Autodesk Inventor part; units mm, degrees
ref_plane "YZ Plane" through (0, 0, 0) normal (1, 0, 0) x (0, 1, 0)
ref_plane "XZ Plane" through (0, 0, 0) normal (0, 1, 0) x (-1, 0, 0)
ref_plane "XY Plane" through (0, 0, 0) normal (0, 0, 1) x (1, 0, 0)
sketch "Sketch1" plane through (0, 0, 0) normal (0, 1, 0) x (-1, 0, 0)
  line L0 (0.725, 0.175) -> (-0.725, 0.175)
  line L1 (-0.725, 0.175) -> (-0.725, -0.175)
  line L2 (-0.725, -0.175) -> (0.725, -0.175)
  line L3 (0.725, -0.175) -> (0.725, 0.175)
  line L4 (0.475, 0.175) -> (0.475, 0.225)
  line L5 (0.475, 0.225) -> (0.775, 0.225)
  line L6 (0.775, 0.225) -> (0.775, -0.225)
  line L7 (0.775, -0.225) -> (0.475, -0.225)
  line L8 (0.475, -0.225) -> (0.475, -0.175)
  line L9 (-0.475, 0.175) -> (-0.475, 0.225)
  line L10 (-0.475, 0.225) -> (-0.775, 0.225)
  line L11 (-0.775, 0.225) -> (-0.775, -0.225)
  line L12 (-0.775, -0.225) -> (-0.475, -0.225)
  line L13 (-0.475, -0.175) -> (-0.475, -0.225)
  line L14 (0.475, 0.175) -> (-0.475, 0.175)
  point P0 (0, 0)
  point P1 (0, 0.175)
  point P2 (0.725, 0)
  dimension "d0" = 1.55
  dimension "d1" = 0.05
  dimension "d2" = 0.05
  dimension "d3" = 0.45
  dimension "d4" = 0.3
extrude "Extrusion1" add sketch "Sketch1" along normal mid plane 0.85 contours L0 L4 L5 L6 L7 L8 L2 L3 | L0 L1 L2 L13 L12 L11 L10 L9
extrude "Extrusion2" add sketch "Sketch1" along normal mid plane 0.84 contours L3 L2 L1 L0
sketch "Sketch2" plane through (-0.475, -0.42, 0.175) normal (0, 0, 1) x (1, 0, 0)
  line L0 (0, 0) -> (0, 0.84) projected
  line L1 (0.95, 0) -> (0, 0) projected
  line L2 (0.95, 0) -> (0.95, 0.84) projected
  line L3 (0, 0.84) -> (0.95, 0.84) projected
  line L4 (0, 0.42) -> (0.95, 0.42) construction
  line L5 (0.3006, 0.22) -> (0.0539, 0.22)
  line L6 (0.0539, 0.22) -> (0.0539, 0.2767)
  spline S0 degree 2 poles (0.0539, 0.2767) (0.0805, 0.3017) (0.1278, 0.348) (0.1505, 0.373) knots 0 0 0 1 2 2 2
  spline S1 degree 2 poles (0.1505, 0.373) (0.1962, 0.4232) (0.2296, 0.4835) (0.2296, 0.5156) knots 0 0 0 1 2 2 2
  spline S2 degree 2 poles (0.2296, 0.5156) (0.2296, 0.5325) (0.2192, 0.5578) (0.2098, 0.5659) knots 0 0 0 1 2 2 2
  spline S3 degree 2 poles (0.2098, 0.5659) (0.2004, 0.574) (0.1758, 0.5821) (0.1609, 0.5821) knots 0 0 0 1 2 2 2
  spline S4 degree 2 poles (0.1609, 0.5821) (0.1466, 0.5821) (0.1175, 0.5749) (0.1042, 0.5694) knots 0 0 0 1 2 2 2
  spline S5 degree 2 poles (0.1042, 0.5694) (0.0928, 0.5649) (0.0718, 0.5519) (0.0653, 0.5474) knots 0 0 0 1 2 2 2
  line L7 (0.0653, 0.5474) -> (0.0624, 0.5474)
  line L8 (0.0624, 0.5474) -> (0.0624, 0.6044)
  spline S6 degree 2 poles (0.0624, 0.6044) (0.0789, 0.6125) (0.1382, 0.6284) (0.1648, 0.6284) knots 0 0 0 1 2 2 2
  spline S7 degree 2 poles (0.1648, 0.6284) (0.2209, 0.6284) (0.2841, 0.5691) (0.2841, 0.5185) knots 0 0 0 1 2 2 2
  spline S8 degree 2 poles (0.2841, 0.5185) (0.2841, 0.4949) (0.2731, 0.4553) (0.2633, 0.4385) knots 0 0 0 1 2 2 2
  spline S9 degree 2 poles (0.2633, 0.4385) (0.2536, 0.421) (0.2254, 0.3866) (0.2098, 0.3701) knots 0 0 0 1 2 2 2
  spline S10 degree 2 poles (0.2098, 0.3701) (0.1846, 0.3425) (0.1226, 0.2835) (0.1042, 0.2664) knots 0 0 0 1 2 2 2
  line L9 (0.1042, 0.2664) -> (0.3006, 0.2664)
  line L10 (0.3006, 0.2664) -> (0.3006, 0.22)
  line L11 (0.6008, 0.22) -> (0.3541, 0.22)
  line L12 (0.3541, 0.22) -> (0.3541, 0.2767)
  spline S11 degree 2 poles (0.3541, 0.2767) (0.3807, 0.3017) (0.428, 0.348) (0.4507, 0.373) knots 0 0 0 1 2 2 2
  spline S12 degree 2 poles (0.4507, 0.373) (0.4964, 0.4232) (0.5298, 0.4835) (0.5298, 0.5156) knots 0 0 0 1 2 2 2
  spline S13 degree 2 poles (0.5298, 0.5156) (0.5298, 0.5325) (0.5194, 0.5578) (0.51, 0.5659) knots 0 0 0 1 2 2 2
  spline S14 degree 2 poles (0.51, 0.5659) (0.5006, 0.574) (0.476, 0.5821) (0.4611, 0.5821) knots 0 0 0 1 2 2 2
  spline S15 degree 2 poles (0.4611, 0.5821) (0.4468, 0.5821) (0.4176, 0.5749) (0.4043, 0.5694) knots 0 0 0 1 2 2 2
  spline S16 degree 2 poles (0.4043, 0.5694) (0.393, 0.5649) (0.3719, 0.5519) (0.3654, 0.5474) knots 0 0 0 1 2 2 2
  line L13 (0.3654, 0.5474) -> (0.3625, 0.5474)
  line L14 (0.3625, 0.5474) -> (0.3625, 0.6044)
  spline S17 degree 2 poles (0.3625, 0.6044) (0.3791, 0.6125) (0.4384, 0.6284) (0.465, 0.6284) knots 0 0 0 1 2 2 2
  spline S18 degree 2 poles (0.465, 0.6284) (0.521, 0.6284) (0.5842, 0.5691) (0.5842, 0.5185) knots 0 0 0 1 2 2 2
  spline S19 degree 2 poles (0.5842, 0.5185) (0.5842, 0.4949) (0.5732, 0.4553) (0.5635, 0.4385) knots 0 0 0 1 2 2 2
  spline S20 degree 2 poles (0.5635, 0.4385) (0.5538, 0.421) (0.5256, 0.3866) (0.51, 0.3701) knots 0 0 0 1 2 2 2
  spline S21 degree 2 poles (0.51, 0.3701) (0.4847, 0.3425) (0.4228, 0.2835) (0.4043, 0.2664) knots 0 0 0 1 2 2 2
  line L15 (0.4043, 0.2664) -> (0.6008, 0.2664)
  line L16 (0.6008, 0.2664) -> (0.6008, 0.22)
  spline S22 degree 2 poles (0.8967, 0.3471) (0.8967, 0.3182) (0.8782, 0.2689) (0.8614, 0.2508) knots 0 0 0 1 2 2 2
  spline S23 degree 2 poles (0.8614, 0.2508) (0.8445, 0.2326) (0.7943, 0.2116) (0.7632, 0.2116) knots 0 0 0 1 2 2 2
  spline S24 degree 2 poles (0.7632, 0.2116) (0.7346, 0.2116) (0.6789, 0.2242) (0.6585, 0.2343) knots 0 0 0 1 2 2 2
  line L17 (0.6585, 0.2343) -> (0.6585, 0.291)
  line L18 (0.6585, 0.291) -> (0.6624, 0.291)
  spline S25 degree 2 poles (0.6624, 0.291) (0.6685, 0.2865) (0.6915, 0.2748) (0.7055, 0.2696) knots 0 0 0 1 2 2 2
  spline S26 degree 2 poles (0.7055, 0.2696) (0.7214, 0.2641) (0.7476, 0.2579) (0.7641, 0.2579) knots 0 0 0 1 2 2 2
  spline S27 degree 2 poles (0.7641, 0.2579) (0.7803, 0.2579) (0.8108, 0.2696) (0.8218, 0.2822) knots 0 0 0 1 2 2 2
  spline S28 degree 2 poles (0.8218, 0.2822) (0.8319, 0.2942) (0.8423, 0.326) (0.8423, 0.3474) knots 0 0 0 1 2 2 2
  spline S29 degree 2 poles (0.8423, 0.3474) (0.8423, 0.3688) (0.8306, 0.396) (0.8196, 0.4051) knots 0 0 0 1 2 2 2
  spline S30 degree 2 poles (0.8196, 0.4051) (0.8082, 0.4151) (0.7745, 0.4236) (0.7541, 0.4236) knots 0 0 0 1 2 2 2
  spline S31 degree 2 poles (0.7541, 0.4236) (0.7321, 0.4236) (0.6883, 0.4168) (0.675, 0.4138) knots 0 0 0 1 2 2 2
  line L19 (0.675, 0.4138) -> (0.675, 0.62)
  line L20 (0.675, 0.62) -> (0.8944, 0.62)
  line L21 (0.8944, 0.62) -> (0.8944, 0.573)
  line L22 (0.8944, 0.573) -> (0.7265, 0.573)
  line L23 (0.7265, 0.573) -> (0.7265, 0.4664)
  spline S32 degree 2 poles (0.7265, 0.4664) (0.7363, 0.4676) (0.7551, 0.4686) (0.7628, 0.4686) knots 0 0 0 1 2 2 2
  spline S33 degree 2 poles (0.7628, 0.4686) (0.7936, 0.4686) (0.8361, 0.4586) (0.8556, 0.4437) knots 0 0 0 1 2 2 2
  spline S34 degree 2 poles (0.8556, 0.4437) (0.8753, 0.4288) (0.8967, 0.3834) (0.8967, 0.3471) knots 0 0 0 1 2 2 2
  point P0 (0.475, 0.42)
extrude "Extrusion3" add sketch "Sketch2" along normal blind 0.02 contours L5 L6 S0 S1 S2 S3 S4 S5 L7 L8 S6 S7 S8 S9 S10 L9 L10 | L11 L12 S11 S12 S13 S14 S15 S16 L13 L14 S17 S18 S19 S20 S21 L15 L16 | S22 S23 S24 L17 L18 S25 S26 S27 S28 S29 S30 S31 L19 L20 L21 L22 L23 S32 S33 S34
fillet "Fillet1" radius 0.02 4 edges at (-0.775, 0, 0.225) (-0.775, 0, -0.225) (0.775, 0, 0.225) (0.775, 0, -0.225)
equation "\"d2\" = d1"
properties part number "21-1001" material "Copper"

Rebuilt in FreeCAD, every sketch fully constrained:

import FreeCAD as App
import Part
import Sketcher
from FreeCAD import Vector


def edges_at(feature, points):
    """Names of the edges that pass closest to the given points."""
    edges = feature.Shape.Edges
    near = lambda p: min(range(len(edges)), key=lambda i: edges[i].distToShape(Part.Vertex(*p))[0])
    return sorted({f"Edge{near(p) + 1}" for p in points})


def add_polygon(sketch, points):
    """Adds a closed chain of lines whose ends are joined by coincident constraints."""
    first, n = sketch.GeometryCount, len(points)
    for a, b in zip(points, points[1:] + points[:1]):
        sketch.addGeometry(Part.LineSegment(App.Vector(*a, 0), App.Vector(*b, 0)), False)
    for i in range(n):
        sketch.addConstraint(Sketcher.Constraint("Coincident", first + i, 2, first + (i + 1) % n, 1))

doc = App.newDocument("Part")
params = doc.addObject("Spreadsheet::Sheet", "Params")
for row, (alias, value) in enumerate([
    ("sketch1_width", "0.3 mm"),
    ("sketch1_height", "0.05 mm"),
    ("sketch1_height2", "0.45 mm"),
    ("pad1_length", "0.85 mm"),
    ("sketch2_width", "1.45 mm"),
    ("sketch2_height", "0.35 mm"),
    ("pad2_length", "0.84 mm"),
    ("pad3_length", "0.02 mm"),
    ("fillet_radius", "0.02 mm"),
], start=1):
    params.set(f"A{row}", alias)
    params.set(f"B{row}", "=" + value)
    params.setAlias(f"B{row}", alias)

body = doc.addObject("PartDesign::Body", "Body")
body.AllowCompound = True

# Sketch on XZ plane
sketch1 = doc.addObject("Sketcher::SketchObject", "Sketch")
body.addObject(sketch1)
sketch1.AttachmentSupport = (doc.XZ_Plane, [""])
sketch1.MapMode = "FlatFace"
add_polygon(sketch1, [(-0.47, 0.17), (-0.72, 0.17), (-0.72, -0.17), (-0.47, -0.17), (-0.47, -0.23), (-0.78, -0.23), (-0.78, 0.23), (-0.47, 0.23)])  # lines 0-7
add_polygon(sketch1, [(0.72, 0.17), (0.47, 0.17), (0.47, 0.23), (0.78, 0.23), (0.78, -0.23), (0.47, -0.23), (0.47, -0.17), (0.72, -0.17)])  # lines 8-15
sketch1.addConstraint([
    Sketcher.Constraint("Horizontal", 0),
    Sketcher.Constraint("Vertical", 1),
    Sketcher.Constraint("Horizontal", 2),
    Sketcher.Constraint("Vertical", 3),
    Sketcher.Constraint("Horizontal", 4),
    Sketcher.Constraint("Vertical", 5),
    Sketcher.Constraint("Horizontal", 6),
    Sketcher.Constraint("Vertical", 7),
    Sketcher.Constraint("Horizontal", 8),
    Sketcher.Constraint("Vertical", 9),
    Sketcher.Constraint("Horizontal", 10),
    Sketcher.Constraint("Vertical", 11),
    Sketcher.Constraint("Horizontal", 12),
    Sketcher.Constraint("Vertical", 13),
    Sketcher.Constraint("Horizontal", 14),
    Sketcher.Constraint("Vertical", 15),
    Sketcher.Constraint("Symmetric", 2, 2, 8, 2, -1, 1),
    Sketcher.Constraint("Symmetric", 4, 2, 10, 2, -1, 1),
    Sketcher.Constraint("Symmetric", 6, 2, 12, 2, -1, 1),
    Sketcher.Constraint("Symmetric", 0, 2, 14, 2, -1, 1),
    Sketcher.Constraint("Symmetric", 7, 2, 8, 2, -2),
    Sketcher.Constraint("Horizontal", 6, 2, 9, 2),
    Sketcher.Constraint("DistanceX", 4, 2, 4, 1, 0.3),
    Sketcher.Constraint("DistanceY", 3, 2, 3, 1, 0.05),
    Sketcher.Constraint("DistanceY", 5, 1, 5, 2, 0.45),
    Sketcher.Constraint("DistanceX", 4, 2, 1, 2, 0.05),
    Sketcher.Constraint("DistanceX", 0, 2, 8, 2, 1.2),
])
sketch1.setExpression("Constraints[38]", "Params.sketch1_width")
sketch1.setExpression("Constraints[39]", "Params.sketch1_height")
sketch1.setExpression("Constraints[40]", "Params.sketch1_height2")
pad1 = doc.addObject("PartDesign::Pad", "Pad")
body.addObject(pad1)
pad1.Profile = sketch1
pad1.setExpression("Length", "Params.pad1_length")
pad1.Midplane = True

# Sketch on XZ plane
sketch2 = doc.addObject("Sketcher::SketchObject", "Sketch001")
body.addObject(sketch2)
sketch2.AttachmentSupport = (doc.XZ_Plane, [""])
sketch2.MapMode = "FlatFace"
add_polygon(sketch2, [(-0.72, -0.17), (-0.72, 0.17), (0.72, 0.17), (0.72, -0.17)])  # lines 0-3
sketch2.addConstraint([
    Sketcher.Constraint("Vertical", 0),
    Sketcher.Constraint("Horizontal", 1),
    Sketcher.Constraint("Vertical", 2),
    Sketcher.Constraint("Horizontal", 3),
    Sketcher.Constraint("Symmetric", 0, 2, 2, 2, -1, 1),
    Sketcher.Constraint("DistanceX", 1, 1, 1, 2, 1.45),
    Sketcher.Constraint("DistanceY", 0, 1, 0, 2, 0.35),
])
sketch2.setExpression("Constraints[9]", "Params.sketch2_width")
sketch2.setExpression("Constraints[10]", "Params.sketch2_height")
pad2 = doc.addObject("PartDesign::Pad", "Pad001")
body.addObject(pad2)
pad2.Profile = sketch2
pad2.setExpression("Length", "Params.pad2_length")
pad2.Midplane = True

# Sketch on XY plane
sketch3 = doc.addObject("Sketcher::SketchObject", "Sketch002")
body.addObject(sketch3)
sketch3.AttachmentSupport = (doc.XY_Plane, [""])
sketch3.MapMode = "FlatFace"
sketch3.AttachmentOffset = App.Placement(Vector(0, 0, 0.175), App.Rotation())
sketch3.addGeometry([
    Part.LineSegment(Vector(-0.4211, -0.2, 0), Vector(-0.1744, -0.2, 0)),  # 0
    Part.LineSegment(Vector(-0.1744, -0.2, 0), Vector(-0.1744, -0.1536, 0)),  # 1
    Part.LineSegment(Vector(-0.1744, -0.1536, 0), Vector(-0.3708, -0.1536, 0)),  # 2
    Part.BSplineCurve([Vector(-0.2652, -0.0499, 0), Vector(-0.2904, -0.0775, 0), Vector(-0.3524, -0.1365, 0), Vector(-0.3708, -0.1536, 0)], [3, 1, 3], [0, 1, 2], False, 2, [1, 1, 1, 1], False),  # 3
    Part.BSplineCurve([Vector(-0.2117, 0.0185, 0), Vector(-0.2214, 0.001, 0), Vector(-0.2496, -0.0334, 0), Vector(-0.2652, -0.0499, 0)], [3, 1, 3], [0, 1, 2], False, 2, [1, 1, 1, 1], False),  # 4
    Part.BSplineCurve([Vector(-0.1909, 0.0985, 0), Vector(-0.1909, 0.0749, 0), Vector(-0.2019, 0.0353, 0), Vector(-0.2117, 0.0185, 0)], [3, 1, 3], [0, 1, 2], False, 2, [1, 1, 1, 1], False),  # 5
    Part.BSplineCurve([Vector(-0.3102, 0.2084, 0), Vector(-0.2541, 0.2084, 0), Vector(-0.1909, 0.1491, 0), Vector(-0.1909, 0.0985, 0)], [3, 1, 3], [0, 1, 2], False, 2, [1, 1, 1, 1], False),  # 6
    Part.BSplineCurve([Vector(-0.4126, 0.1844, 0), Vector(-0.3961, 0.1925, 0), Vector(-0.3368, 0.2084, 0), Vector(-0.3102, 0.2084, 0)], [3, 1, 3], [0, 1, 2], False, 2, [1, 1, 1, 1], False),  # 7
    Part.LineSegment(Vector(-0.4126, 0.1844, 0), Vector(-0.4126, 0.1274, 0)),  # 8
    Part.LineSegment(Vector(-0.4126, 0.1274, 0), Vector(-0.4097, 0.1274, 0)),  # 9
    Part.BSplineCurve([Vector(-0.3708, 0.1494, 0), Vector(-0.3822, 0.1449, 0), Vector(-0.4032, 0.1319, 0), Vector(-0.4097, 0.1274, 0)], [3, 1, 3], [0, 1, 2], False, 2, [1, 1, 1, 1], False),  # 10
    Part.BSplineCurve([Vector(-0.3141, 0.1621, 0), Vector(-0.3284, 0.1621, 0), Vector(-0.3575, 0.1549, 0), Vector(-0.3708, 0.1494, 0)], [3, 1, 3], [0, 1, 2], False, 2, [1, 1, 1, 1], False),  # 11
    Part.BSplineCurve([Vector(-0.2652, 0.1459, 0), Vector(-0.2746, 0.154, 0), Vector(-0.2992, 0.1621, 0), Vector(-0.3141, 0.1621, 0)], [3, 1, 3], [0, 1, 2], False, 2, [1, 1, 1, 1], False),  # 12
    Part.BSplineCurve([Vector(-0.2454, 0.0956, 0), Vector(-0.2454, 0.1125, 0), Vector(-0.2558, 0.1378, 0), Vector(-0.2652, 0.1459, 0)], [3, 1, 3], [0, 1, 2], False, 2, [1, 1, 1, 1], False),  # 13
    Part.BSplineCurve([Vector(-0.3245, -0.047, 0), Vector(-0.2788, 0.0032, 0), Vector(-0.2454, 0.0635, 0), Vector(-0.2454, 0.0956, 0)], [3, 1, 3], [0, 1, 2], False, 2, [1, 1, 1, 1], False),  # 14
    Part.BSplineCurve([Vector(-0.4211, -0.1433, 0), Vector(-0.3945, -0.1183, 0), Vector(-0.3472, -0.072, 0), Vector(-0.3245, -0.047, 0)], [3, 1, 3], [0, 1, 2], False, 2, [1, 1, 1, 1], False),  # 15
    Part.LineSegment(Vector(-0.4211, -0.1433, 0), Vector(-0.4211, -0.2, 0)),  # 16
    Part.LineSegment(Vector(-0.1209, -0.2, 0), Vector(0.1258, -0.2, 0)),  # 17
    Part.LineSegment(Vector(0.1258, -0.2, 0), Vector(0.1258, -0.1536, 0)),  # 18
    Part.LineSegment(Vector(0.1258, -0.1536, 0), Vector(-0.0707, -0.1536, 0)),  # 19
    Part.BSplineCurve([Vector(0.035, -0.0499, 0), Vector(0.0097, -0.0775, 0), Vector(-0.0522, -0.1365, 0), Vector(-0.0707, -0.1536, 0)], [3, 1, 3], [0, 1, 2], False, 2, [1, 1, 1, 1], False),  # 20
    Part.BSplineCurve([Vector(0.0885, 0.0185, 0), Vector(0.0788, 0.001, 0), Vector(0.0506, -0.0334, 0), Vector(0.035, -0.0499, 0)], [3, 1, 3], [0, 1, 2], False, 2, [1, 1, 1, 1], False),  # 21
    Part.BSplineCurve([Vector(0.1092, 0.0985, 0), Vector(0.1092, 0.0749, 0), Vector(0.0982, 0.0353, 0), Vector(0.0885, 0.0185, 0)], [3, 1, 3], [0, 1, 2], False, 2, [1, 1, 1, 1], False),  # 22
    Part.BSplineCurve([Vector(-0.01, 0.2084, 0), Vector(0.046, 0.2084, 0), Vector(0.1092, 0.1491, 0), Vector(0.1092, 0.0985, 0)], [3, 1, 3], [0, 1, 2], False, 2, [1, 1, 1, 1], False),  # 23
    Part.BSplineCurve([Vector(-0.1125, 0.1844, 0), Vector(-0.0959, 0.1925, 0), Vector(-0.0366, 0.2084, 0), Vector(-0.01, 0.2084, 0)], [3, 1, 3], [0, 1, 2], False, 2, [1, 1, 1, 1], False),  # 24
    Part.LineSegment(Vector(-0.1125, 0.1844, 0), Vector(-0.1125, 0.1274, 0)),  # 25
    Part.LineSegment(Vector(-0.1125, 0.1274, 0), Vector(-0.1096, 0.1274, 0)),  # 26
    Part.BSplineCurve([Vector(-0.0707, 0.1494, 0), Vector(-0.082, 0.1449, 0), Vector(-0.1031, 0.1319, 0), Vector(-0.1096, 0.1274, 0)], [3, 1, 3], [0, 1, 2], False, 2, [1, 1, 1, 1], False),  # 27
    Part.BSplineCurve([Vector(-0.0139, 0.1621, 0), Vector(-0.0282, 0.1621, 0), Vector(-0.0574, 0.1549, 0), Vector(-0.0707, 0.1494, 0)], [3, 1, 3], [0, 1, 2], False, 2, [1, 1, 1, 1], False),  # 28
    Part.BSplineCurve([Vector(0.035, 0.1459, 0), Vector(0.0256, 0.154, 0), Vector(0.001, 0.1621, 0), Vector(-0.0139, 0.1621, 0)], [3, 1, 3], [0, 1, 2], False, 2, [1, 1, 1, 1], False),  # 29
    Part.BSplineCurve([Vector(0.0548, 0.0956, 0), Vector(0.0548, 0.1125, 0), Vector(0.0444, 0.1378, 0), Vector(0.035, 0.1459, 0)], [3, 1, 3], [0, 1, 2], False, 2, [1, 1, 1, 1], False),  # 30
    Part.BSplineCurve([Vector(-0.0243, -0.047, 0), Vector(0.0214, 0.0032, 0), Vector(0.0548, 0.0635, 0), Vector(0.0548, 0.0956, 0)], [3, 1, 3], [0, 1, 2], False, 2, [1, 1, 1, 1], False),  # 31
    Part.BSplineCurve([Vector(-0.1209, -0.1433, 0), Vector(-0.0943, -0.1183, 0), Vector(-0.047, -0.072, 0), Vector(-0.0243, -0.047, 0)], [3, 1, 3], [0, 1, 2], False, 2, [1, 1, 1, 1], False),  # 32
    Part.LineSegment(Vector(-0.1209, -0.1433, 0), Vector(-0.1209, -0.2, 0)),  # 33
    Part.BSplineCurve([Vector(0.4217, -0.0729, 0), Vector(0.4217, -0.1018, 0), Vector(0.4032, -0.1511, 0), Vector(0.3864, -0.1692, 0)], [3, 1, 3], [0, 1, 2], False, 2, [1, 1, 1, 1], False),  # 34
    Part.BSplineCurve([Vector(0.3806, 0.0237, 0), Vector(0.4003, 0.0088, 0), Vector(0.4217, -0.0366, 0), Vector(0.4217, -0.0729, 0)], [3, 1, 3], [0, 1, 2], False, 2, [1, 1, 1, 1], False),  # 35
    Part.BSplineCurve([Vector(0.2878, 0.0486, 0), Vector(0.3186, 0.0486, 0), Vector(0.3611, 0.0386, 0), Vector(0.3806, 0.0237, 0)], [3, 1, 3], [0, 1, 2], False, 2, [1, 1, 1, 1], False),  # 36
    Part.BSplineCurve([Vector(0.2515, 0.0464, 0), Vector(0.2613, 0.0476, 0), Vector(0.2801, 0.0486, 0), Vector(0.2878, 0.0486, 0)], [3, 1, 3], [0, 1, 2], False, 2, [1, 1, 1, 1], False),  # 37
    Part.LineSegment(Vector(0.2515, 0.0464, 0), Vector(0.2515, 0.153, 0)),  # 38
    Part.LineSegment(Vector(0.2515, 0.153, 0), Vector(0.4194, 0.153, 0)),  # 39
    Part.LineSegment(Vector(0.4194, 0.153, 0), Vector(0.4194, 0.2, 0)),  # 40
    Part.LineSegment(Vector(0.4194, 0.2, 0), Vector(0.2, 0.2, 0)),  # 41
    Part.LineSegment(Vector(0.2, 0.2, 0), Vector(0.2, -0.0062, 0)),  # 42
    Part.BSplineCurve([Vector(0.2791, 0.0036, 0), Vector(0.2571, 0.0036, 0), Vector(0.2133, -0.0032, 0), Vector(0.2, -0.0062, 0)], [3, 1, 3], [0, 1, 2], False, 2, [1, 1, 1, 1], False),  # 43
    Part.BSplineCurve([Vector(0.3446, -0.0149, 0), Vector(0.3332, -0.0049, 0), Vector(0.2995, 0.0036, 0), Vector(0.2791, 0.0036, 0)], [3, 1, 3], [0, 1, 2], False, 2, [1, 1, 1, 1], False),  # 44
    Part.BSplineCurve([Vector(0.3673, -0.0726, 0), Vector(0.3673, -0.0512, 0), Vector(0.3556, -0.024, 0), Vector(0.3446, -0.0149, 0)], [3, 1, 3], [0, 1, 2], False, 2, [1, 1, 1, 1], False),  # 45
    Part.BSplineCurve([Vector(0.3468, -0.1378, 0), Vector(0.3569, -0.1258, 0), Vector(0.3673, -0.094, 0), Vector(0.3673, -0.0726, 0)], [3, 1, 3], [0, 1, 2], False, 2, [1, 1, 1, 1], False),  # 46
    Part.BSplineCurve([Vector(0.2891, -0.1621, 0), Vector(0.3053, -0.1621, 0), Vector(0.3358, -0.1504, 0), Vector(0.3468, -0.1378, 0)], [3, 1, 3], [0, 1, 2], False, 2, [1, 1, 1, 1], False),  # 47
    Part.BSplineCurve([Vector(0.2305, -0.1504, 0), Vector(0.2464, -0.1559, 0), Vector(0.2726, -0.1621, 0), Vector(0.2891, -0.1621, 0)], [3, 1, 3], [0, 1, 2], False, 2, [1, 1, 1, 1], False),  # 48
    Part.BSplineCurve([Vector(0.1874, -0.129, 0), Vector(0.1935, -0.1335, 0), Vector(0.2165, -0.1452, 0), Vector(0.2305, -0.1504, 0)], [3, 1, 3], [0, 1, 2], False, 2, [1, 1, 1, 1], False),  # 49
    Part.LineSegment(Vector(0.1874, -0.129, 0), Vector(0.1835, -0.129, 0)),  # 50
    Part.LineSegment(Vector(0.1835, -0.129, 0), Vector(0.1835, -0.1857, 0)),  # 51
    Part.BSplineCurve([Vector(0.2882, -0.2084, 0), Vector(0.2596, -0.2084, 0), Vector(0.2039, -0.1958, 0), Vector(0.1835, -0.1857, 0)], [3, 1, 3], [0, 1, 2], False, 2, [1, 1, 1, 1], False),  # 52
    Part.BSplineCurve([Vector(0.3864, -0.1692, 0), Vector(0.3695, -0.1874, 0), Vector(0.3193, -0.2084, 0), Vector(0.2882, -0.2084, 0)], [3, 1, 3], [0, 1, 2], False, 2, [1, 1, 1, 1], False),  # 53
], False)
sketch3.addConstraint([
    Sketcher.Constraint("Block", 3),
    Sketcher.Constraint("Block", 4),
    Sketcher.Constraint("Block", 5),
    Sketcher.Constraint("Block", 6),
    Sketcher.Constraint("Block", 7),
    Sketcher.Constraint("Block", 10),
    Sketcher.Constraint("Block", 11),
    Sketcher.Constraint("Block", 12),
    Sketcher.Constraint("Block", 13),
    Sketcher.Constraint("Block", 14),
    Sketcher.Constraint("Block", 15),
    Sketcher.Constraint("Block", 20),
    Sketcher.Constraint("Block", 21),
    Sketcher.Constraint("Block", 22),
    Sketcher.Constraint("Block", 23),
    Sketcher.Constraint("Block", 24),
    Sketcher.Constraint("Block", 27),
    Sketcher.Constraint("Block", 28),
    Sketcher.Constraint("Block", 29),
    Sketcher.Constraint("Block", 30),
    Sketcher.Constraint("Block", 31),
    Sketcher.Constraint("Block", 32),
    Sketcher.Constraint("Block", 34),
    Sketcher.Constraint("Block", 35),
    Sketcher.Constraint("Block", 36),
    Sketcher.Constraint("Block", 37),
    Sketcher.Constraint("Block", 43),
    Sketcher.Constraint("Block", 44),
    Sketcher.Constraint("Block", 45),
    Sketcher.Constraint("Block", 46),
    Sketcher.Constraint("Block", 47),
    Sketcher.Constraint("Block", 48),
    Sketcher.Constraint("Block", 49),
    Sketcher.Constraint("Block", 52),
    Sketcher.Constraint("Block", 53),
    Sketcher.Constraint("Coincident", 0, 2, 1, 1),
    Sketcher.Constraint("Coincident", 1, 2, 2, 1),
    Sketcher.Constraint("Coincident", 2, 2, 3, 2),
    Sketcher.Constraint("Coincident", 7, 1, 8, 1),
    Sketcher.Constraint("Coincident", 8, 2, 9, 1),
    Sketcher.Constraint("Coincident", 9, 2, 10, 2),
    Sketcher.Constraint("Coincident", 15, 1, 16, 1),
    Sketcher.Constraint("Coincident", 16, 2, 0, 1),
    Sketcher.Constraint("Coincident", 17, 2, 18, 1),
    Sketcher.Constraint("Coincident", 18, 2, 19, 1),
    Sketcher.Constraint("Coincident", 19, 2, 20, 2),
    Sketcher.Constraint("Coincident", 24, 1, 25, 1),
    Sketcher.Constraint("Coincident", 25, 2, 26, 1),
    Sketcher.Constraint("Coincident", 26, 2, 27, 2),
    Sketcher.Constraint("Coincident", 32, 1, 33, 1),
    Sketcher.Constraint("Coincident", 33, 2, 17, 1),
    Sketcher.Constraint("Coincident", 37, 1, 38, 1),
    Sketcher.Constraint("Coincident", 38, 2, 39, 1),
    Sketcher.Constraint("Coincident", 39, 2, 40, 1),
    Sketcher.Constraint("Coincident", 40, 2, 41, 1),
    Sketcher.Constraint("Coincident", 41, 2, 42, 1),
    Sketcher.Constraint("Coincident", 42, 2, 43, 2),
    Sketcher.Constraint("Coincident", 49, 1, 50, 1),
    Sketcher.Constraint("Coincident", 50, 2, 51, 1),
    Sketcher.Constraint("Coincident", 51, 2, 52, 2),
    Sketcher.Constraint("Horizontal", 0),
    Sketcher.Constraint("Vertical", 1),
    Sketcher.Constraint("Horizontal", 2),
    Sketcher.Constraint("Vertical", 8),
    Sketcher.Constraint("Horizontal", 9),
    Sketcher.Constraint("Vertical", 16),
    Sketcher.Constraint("Horizontal", 17),
    Sketcher.Constraint("Vertical", 18),
    Sketcher.Constraint("Horizontal", 19),
    Sketcher.Constraint("Vertical", 25),
    Sketcher.Constraint("Horizontal", 26),
    Sketcher.Constraint("Vertical", 33),
    Sketcher.Constraint("Vertical", 38),
    Sketcher.Constraint("Horizontal", 39),
    Sketcher.Constraint("Vertical", 40),
    Sketcher.Constraint("Horizontal", 41),
    Sketcher.Constraint("Vertical", 42),
    Sketcher.Constraint("Horizontal", 50),
    Sketcher.Constraint("Vertical", 51),
    Sketcher.Constraint("DistanceY", 0, 2, -1, 1, 0.2),
    Sketcher.Constraint("DistanceY", 17, 2, -1, 1, 0.2),
    Sketcher.Constraint("DistanceY", -1, 1, 40, 2, 0.2),
    Sketcher.Constraint("DistanceX", 39, 1, 39, 2, 0.168),
    Sketcher.Constraint("DistanceY", 40, 1, 40, 2, 0.047),
    Sketcher.Constraint("DistanceX", 0, 1, 0, 2, 0.2467),
    Sketcher.Constraint("DistanceX", 17, 1, 17, 2, 0.2467),
])
pad3 = doc.addObject("PartDesign::Pad", "Pad002")
body.addObject(pad3)
pad3.Profile = sketch3
pad3.setExpression("Length", "Params.pad3_length")
doc.recompute()

fillet = doc.addObject("PartDesign::Fillet", "Fillet")
body.addObject(fillet)
fillet.Base = (pad3, edges_at(pad3, [
    (-0.775, 0, 0.225),
    (-0.775, 0, -0.225),
    (0.775, 0, 0.225),
    (0.775, 0, -0.225),
]))
fillet.setExpression("Radius", "Params.fillet_radius")

doc.recompute()
